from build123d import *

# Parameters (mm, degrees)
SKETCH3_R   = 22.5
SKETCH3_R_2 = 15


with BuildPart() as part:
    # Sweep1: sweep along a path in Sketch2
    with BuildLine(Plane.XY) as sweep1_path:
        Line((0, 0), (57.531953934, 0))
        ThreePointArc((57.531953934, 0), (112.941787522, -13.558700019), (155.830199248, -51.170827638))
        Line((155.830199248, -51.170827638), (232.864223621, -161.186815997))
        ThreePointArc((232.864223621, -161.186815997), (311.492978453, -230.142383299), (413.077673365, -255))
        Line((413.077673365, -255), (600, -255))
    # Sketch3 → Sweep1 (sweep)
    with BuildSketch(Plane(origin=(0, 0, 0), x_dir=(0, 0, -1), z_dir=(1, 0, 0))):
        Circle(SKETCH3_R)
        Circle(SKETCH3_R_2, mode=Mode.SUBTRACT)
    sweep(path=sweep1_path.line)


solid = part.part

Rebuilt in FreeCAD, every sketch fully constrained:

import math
import FreeCAD as App
import Part
import Sketcher
from FreeCAD import Vector
Q = App.Units.Quantity

doc = App.newDocument("Part")
params = doc.addObject("Spreadsheet::Sheet", "Params")
for row, (alias, value) in enumerate([
    ("sketch1_diameter", "45 mm"),
    ("sketch1_diameter2", "30 mm"),
    ("sketch2_radius", "120 mm"),
    ("sketch2_radius2", "220 mm"),
], start=1):
    params.set(f"A{row}", alias)
    params.set(f"B{row}", "=" + value)
    params.setAlias(f"B{row}", alias)

body = doc.addObject("PartDesign::Body", "Body")

# Sketch on YZ plane
sketch1 = doc.addObject("Sketcher::SketchObject", "Sketch")
body.addObject(sketch1)
sketch1.AttachmentSupport = (doc.YZ_Plane, [""])
sketch1.MapMode = "FlatFace"
sketch1.addGeometry([
    Part.Circle(Vector(0, 0, 0), Vector(0, 0, 1), 22),
    Part.Circle(Vector(0, 0, 0), Vector(0, 0, 1), 15),
], False)
sketch1.addConstraint([
    Sketcher.Constraint("Coincident", 0, 3, -1, 1),
    Sketcher.Constraint("Coincident", 1, 3, -1, 1),
    Sketcher.Constraint("Diameter", 0, Q("45 mm")),
    Sketcher.Constraint("Diameter", 1, Q("30 mm")),
])
sketch1.setExpression("Constraints[2]", "Params.sketch1_diameter")
sketch1.setExpression("Constraints[3]", "Params.sketch1_diameter2")

# Sketch on XY plane
sketch2 = doc.addObject("Sketcher::SketchObject", "Sketch001")
body.addObject(sketch2)
sketch2.AttachmentSupport = (doc.XY_Plane, [""])
sketch2.MapMode = "FlatFace"
sketch2.addGeometry([
    Part.LineSegment(Vector(0, 0, 0), Vector(58, 0, 0)),  # 0
    Part.ArcOfCircle(Part.Circle(Vector(58, -120, 0), Vector(0, 0, 1), 120), math.radians(35), math.radians(90)),  # 1
    Part.LineSegment(Vector(156, -51, 0), Vector(233, -161, 0)),  # 2
    Part.ArcOfCircle(Part.Circle(Vector(413, -35, 0), Vector(0, 0, 1), 220), math.radians(-145), math.radians(-90)),  # 3
    Part.LineSegment(Vector(413, -255, 0), Vector(600, -255, 0)),  # 4
], False)
sketch2.addConstraint([
    Sketcher.Constraint("Tangent", 0, 2, 1, 2),
    Sketcher.Constraint("Tangent", 1, 1, 2, 1),
    Sketcher.Constraint("Tangent", 2, 2, 3, 1),
    Sketcher.Constraint("Tangent", 3, 2, 4, 1),
    Sketcher.Constraint("Horizontal", 0),
    Sketcher.Constraint("Horizontal", 4),
    Sketcher.Constraint("Coincident", 0, 1, -1, 1),
    Sketcher.Constraint("Radius", 1, Q("120 mm")),
    Sketcher.Constraint("Radius", 3, Q("220 mm")),
    Sketcher.Constraint("Angle", 2, Q("-55 deg")),
    Sketcher.Constraint("DistanceY", 3, 3, -1, 1, Q("35 mm")),
    Sketcher.Constraint("DistanceX", -1, 1, 4, 2, Q("600 mm")),
    Sketcher.Constraint("DistanceX", -1, 1, 1, 1, Q("155.830199 mm")),
])
sketch2.setExpression("Constraints[7]", "Params.sketch2_radius")
sketch2.setExpression("Constraints[8]", "Params.sketch2_radius2")
doc.recompute()

additivepipe = doc.addObject("PartDesign::AdditivePipe", "AdditivePipe")
body.addObject(additivepipe)
additivepipe.Profile = sketch1
additivepipe.Spine = (sketch2, ["Edge1", "Edge2", "Edge3", "Edge4", "Edge5"])

doc.recompute()
